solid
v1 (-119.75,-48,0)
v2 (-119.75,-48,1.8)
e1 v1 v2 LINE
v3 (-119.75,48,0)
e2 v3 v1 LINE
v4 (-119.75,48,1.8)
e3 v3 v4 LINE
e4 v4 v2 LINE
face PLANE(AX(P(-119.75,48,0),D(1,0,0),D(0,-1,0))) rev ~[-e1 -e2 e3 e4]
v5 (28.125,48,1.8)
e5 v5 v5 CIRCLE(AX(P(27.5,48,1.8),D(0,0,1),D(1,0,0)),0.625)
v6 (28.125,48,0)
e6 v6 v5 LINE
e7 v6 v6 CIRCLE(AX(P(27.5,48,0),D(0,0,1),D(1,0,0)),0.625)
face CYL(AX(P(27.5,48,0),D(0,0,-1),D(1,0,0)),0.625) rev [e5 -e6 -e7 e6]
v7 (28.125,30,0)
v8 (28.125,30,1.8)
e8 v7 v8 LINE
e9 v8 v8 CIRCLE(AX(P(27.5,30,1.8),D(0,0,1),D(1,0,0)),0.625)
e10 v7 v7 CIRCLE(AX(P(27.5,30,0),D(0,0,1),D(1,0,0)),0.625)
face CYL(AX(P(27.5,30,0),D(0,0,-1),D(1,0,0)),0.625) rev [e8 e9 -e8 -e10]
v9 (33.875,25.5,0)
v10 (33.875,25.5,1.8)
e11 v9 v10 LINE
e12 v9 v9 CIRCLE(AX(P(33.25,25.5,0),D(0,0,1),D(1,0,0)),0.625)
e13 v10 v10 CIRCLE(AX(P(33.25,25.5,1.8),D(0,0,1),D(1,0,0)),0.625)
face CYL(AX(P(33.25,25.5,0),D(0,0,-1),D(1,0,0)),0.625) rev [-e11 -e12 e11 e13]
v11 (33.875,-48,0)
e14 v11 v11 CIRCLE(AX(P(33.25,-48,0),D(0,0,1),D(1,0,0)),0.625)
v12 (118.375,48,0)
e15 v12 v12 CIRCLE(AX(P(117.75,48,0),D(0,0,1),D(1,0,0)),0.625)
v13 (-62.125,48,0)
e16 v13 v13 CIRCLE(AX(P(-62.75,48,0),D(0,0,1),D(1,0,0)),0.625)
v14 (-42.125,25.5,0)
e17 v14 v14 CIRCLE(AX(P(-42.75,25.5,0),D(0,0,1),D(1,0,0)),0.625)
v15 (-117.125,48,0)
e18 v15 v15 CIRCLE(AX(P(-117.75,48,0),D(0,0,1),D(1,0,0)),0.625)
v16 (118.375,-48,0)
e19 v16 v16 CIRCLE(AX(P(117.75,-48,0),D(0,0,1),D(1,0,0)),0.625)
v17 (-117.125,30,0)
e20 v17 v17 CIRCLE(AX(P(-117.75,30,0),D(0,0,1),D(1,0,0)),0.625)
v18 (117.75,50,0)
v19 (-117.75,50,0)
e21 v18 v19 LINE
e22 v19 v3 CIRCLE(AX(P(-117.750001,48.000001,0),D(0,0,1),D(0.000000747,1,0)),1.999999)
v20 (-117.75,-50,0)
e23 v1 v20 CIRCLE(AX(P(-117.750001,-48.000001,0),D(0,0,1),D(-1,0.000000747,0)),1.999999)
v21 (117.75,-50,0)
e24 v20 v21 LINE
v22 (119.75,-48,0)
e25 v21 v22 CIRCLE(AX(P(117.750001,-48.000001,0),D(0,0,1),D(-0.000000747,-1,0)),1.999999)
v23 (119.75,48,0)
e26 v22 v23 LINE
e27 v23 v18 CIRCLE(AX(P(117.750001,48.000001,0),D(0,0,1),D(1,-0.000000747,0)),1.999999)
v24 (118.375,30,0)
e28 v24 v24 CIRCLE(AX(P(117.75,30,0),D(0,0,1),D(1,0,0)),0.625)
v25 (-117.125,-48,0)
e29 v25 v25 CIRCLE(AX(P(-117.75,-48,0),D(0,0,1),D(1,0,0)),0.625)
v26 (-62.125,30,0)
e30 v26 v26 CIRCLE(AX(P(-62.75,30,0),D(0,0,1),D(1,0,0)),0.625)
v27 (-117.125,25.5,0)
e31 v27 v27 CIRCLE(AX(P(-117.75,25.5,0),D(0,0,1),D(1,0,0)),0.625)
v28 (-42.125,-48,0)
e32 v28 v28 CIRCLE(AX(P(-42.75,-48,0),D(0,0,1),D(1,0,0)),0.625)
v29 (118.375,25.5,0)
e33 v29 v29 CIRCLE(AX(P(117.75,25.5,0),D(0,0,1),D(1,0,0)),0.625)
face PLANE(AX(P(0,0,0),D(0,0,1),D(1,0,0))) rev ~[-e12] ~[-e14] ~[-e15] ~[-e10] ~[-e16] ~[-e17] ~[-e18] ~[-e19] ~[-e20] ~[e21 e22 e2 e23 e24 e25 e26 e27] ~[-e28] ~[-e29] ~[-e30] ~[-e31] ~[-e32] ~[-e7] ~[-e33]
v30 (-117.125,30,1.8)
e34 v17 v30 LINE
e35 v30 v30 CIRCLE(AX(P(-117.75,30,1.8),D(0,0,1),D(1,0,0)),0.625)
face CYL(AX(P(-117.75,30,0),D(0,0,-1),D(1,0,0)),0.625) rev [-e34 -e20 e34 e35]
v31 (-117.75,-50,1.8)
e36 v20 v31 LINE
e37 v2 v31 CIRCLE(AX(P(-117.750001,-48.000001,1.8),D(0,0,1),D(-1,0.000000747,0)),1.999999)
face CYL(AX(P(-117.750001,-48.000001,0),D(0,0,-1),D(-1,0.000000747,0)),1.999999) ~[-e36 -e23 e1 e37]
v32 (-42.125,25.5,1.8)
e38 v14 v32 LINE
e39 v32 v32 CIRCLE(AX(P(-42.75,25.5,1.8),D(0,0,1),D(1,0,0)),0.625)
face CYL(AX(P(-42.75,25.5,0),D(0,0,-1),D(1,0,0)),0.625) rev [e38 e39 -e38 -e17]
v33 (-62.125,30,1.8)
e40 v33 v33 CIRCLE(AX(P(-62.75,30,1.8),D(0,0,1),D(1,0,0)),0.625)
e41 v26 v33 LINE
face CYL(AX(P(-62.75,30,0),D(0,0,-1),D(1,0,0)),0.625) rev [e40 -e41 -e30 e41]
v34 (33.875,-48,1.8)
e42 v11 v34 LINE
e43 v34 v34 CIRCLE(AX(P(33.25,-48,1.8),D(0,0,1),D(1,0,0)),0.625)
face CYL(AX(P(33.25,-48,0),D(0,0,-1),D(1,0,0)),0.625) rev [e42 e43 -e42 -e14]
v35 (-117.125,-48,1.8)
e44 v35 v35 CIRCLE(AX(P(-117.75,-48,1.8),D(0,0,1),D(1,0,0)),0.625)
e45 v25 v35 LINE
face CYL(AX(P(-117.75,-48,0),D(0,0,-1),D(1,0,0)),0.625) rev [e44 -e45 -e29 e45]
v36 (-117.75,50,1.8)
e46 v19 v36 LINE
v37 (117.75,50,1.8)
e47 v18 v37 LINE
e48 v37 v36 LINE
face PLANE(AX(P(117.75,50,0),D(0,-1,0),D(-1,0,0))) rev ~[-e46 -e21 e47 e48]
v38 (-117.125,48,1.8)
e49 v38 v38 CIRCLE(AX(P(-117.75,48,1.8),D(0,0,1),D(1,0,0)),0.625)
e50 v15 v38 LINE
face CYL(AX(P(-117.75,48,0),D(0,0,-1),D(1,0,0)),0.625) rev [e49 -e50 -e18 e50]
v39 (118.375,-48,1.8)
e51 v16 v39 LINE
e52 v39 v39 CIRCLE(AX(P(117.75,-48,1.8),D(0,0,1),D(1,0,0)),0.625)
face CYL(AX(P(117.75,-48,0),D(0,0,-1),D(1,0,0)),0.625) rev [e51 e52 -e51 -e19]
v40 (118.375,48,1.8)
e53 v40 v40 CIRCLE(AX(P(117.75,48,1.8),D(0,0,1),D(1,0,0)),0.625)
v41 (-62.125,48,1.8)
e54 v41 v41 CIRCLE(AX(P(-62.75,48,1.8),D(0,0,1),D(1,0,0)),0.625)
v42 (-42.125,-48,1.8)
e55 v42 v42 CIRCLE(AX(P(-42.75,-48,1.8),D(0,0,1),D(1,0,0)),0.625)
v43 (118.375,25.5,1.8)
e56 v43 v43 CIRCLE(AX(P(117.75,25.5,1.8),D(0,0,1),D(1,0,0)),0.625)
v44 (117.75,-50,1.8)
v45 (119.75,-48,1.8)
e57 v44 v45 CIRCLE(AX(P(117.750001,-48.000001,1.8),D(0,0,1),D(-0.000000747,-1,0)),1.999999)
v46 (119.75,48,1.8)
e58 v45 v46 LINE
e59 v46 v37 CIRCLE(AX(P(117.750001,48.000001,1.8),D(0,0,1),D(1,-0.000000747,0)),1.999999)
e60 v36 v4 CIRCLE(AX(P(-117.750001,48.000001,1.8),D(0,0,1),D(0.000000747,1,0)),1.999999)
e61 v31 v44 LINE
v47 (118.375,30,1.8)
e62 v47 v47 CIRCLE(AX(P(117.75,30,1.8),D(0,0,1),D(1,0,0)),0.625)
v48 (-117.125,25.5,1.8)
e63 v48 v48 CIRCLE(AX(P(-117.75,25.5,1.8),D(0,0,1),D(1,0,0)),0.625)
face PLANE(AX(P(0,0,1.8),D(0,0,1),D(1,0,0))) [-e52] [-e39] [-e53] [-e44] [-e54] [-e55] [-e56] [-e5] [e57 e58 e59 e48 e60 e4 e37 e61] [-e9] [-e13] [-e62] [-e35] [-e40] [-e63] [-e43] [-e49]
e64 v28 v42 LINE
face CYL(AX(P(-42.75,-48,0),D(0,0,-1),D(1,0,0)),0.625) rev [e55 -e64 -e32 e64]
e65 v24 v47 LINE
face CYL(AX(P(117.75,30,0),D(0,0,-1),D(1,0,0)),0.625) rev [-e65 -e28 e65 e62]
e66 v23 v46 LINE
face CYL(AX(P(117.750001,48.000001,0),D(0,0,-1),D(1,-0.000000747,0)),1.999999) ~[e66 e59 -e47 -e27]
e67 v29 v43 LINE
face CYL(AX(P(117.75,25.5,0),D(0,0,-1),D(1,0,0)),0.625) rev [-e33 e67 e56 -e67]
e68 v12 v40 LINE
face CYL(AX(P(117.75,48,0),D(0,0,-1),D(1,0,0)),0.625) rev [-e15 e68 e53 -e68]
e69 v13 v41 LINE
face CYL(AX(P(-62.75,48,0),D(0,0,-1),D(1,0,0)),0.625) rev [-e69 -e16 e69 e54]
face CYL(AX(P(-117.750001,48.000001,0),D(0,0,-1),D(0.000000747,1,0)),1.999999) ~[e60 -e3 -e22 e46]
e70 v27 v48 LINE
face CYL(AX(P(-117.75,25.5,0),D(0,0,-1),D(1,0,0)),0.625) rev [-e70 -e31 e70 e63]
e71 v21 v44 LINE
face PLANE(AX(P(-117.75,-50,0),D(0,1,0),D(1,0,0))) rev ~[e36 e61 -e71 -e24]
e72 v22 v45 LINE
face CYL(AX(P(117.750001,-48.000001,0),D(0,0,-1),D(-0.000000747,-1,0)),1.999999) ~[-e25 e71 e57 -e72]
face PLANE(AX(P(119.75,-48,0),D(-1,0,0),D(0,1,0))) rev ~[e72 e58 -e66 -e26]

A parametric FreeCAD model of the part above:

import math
import FreeCAD as App
import Part
import Sketcher
from FreeCAD import Vector
Q = App.Units.Quantity

doc = App.newDocument("Part")
params = doc.addObject("Spreadsheet::Sheet", "Params")
for row, (alias, value) in enumerate([
    ("sketch1_radius", "1.999999 mm"),
    ("sketch1_diameter", "1.25 mm"),
    ("sketch1_height", "96 mm"),
    ("sketch1_width", "235.5 mm"),
    ("pad1_length", "1.8 mm"),
], start=1):
    params.set(f"A{row}", alias)
    params.set(f"B{row}", "=" + value)
    params.setAlias(f"B{row}", alias)

body = doc.addObject("PartDesign::Body", "Body")

sketch1 = body.newObject("Sketcher::SketchObject", "Sketch")
sketch1.AttachmentSupport = (doc.getObject("XY_Plane"), [""])
sketch1.MapMode = "FlatFace"
sketch1.addGeometry([
    Part.LineSegment(Vector(-119.8, 48, 0), Vector(-119.8, -48, 0)),
    Part.ArcOfCircle(Part.Circle(Vector(-117.8, -48, 0), Vector(0, 0, 1), 2), math.radians(180), math.radians(270)),
    Part.LineSegment(Vector(-117.8, -50, 0), Vector(117.8, -50, 0)),
    Part.ArcOfCircle(Part.Circle(Vector(117.8, -48, 0), Vector(0, 0, 1), 2), math.radians(-90), math.radians(0)),
    Part.LineSegment(Vector(119.8, -48, 0), Vector(119.8, 48, 0)),
    Part.ArcOfCircle(Part.Circle(Vector(117.8, 48, 0), Vector(0, 0, 1), 2), math.radians(0), math.radians(90)),
    Part.LineSegment(Vector(117.8, 50, 0), Vector(-117.8, 50, 0)),
    Part.ArcOfCircle(Part.Circle(Vector(-117.8, 48, 0), Vector(0, 0, 1), 2), math.radians(90), math.radians(180)),
    Part.Circle(Vector(-117.8, -48, 0), Vector(0, 0, 1), 0.6),
    Part.Circle(Vector(-42.8, -48, 0), Vector(0, 0, 1), 0.6),
    Part.Circle(Vector(33.2, -48, 0), Vector(0, 0, 1), 0.6),
    Part.Circle(Vector(117.8, -48, 0), Vector(0, 0, 1), 0.6),
    Part.Circle(Vector(-117.8, 25.5, 0), Vector(0, 0, 1), 0.6),
    Part.Circle(Vector(-117.8, 30, 0), Vector(0, 0, 1), 0.6),
    Part.Circle(Vector(-62.8, 30, 0), Vector(0, 0, 1), 0.6),
    Part.Circle(Vector(-117.8, 48, 0), Vector(0, 0, 1), 0.6),
    Part.Circle(Vector(-62.8, 48, 0), Vector(0, 0, 1), 0.6),
    Part.Circle(Vector(-42.8, 25.5, 0), Vector(0, 0, 1), 0.6),
    Part.Circle(Vector(27.5, 30, 0), Vector(0, 0, 1), 0.6),
    Part.Circle(Vector(33.2, 25.5, 0), Vector(0, 0, 1), 0.6),
    Part.Circle(Vector(27.5, 48, 0), Vector(0, 0, 1), 0.6),
    Part.Circle(Vector(117.8, 25.5, 0), Vector(0, 0, 1), 0.6),
    Part.Circle(Vector(117.8, 30, 0), Vector(0, 0, 1), 0.6),
    Part.Circle(Vector(117.8, 48, 0), Vector(0, 0, 1), 0.6),
], False)
sketch1.addConstraint([
    Sketcher.Constraint("Tangent", 0, 2, 1, 1),
    Sketcher.Constraint("Tangent", 1, 2, 2, 1),
    Sketcher.Constraint("Tangent", 2, 2, 3, 1),
    Sketcher.Constraint("Tangent", 3, 2, 4, 1),
    Sketcher.Constraint("Tangent", 4, 2, 5, 1),
    Sketcher.Constraint("Tangent", 5, 2, 6, 1),
    Sketcher.Constraint("Tangent", 6, 2, 7, 1),
    Sketcher.Constraint("Tangent", 7, 2, 0, 1),
    Sketcher.Constraint("Vertical", 0),
    Sketcher.Constraint("Horizontal", 2),
    Sketcher.Constraint("Vertical", 4),
    Sketcher.Constraint("Horizontal", 6),
    Sketcher.Constraint("Coincident", 8, 3, 1, 3),
    Sketcher.Constraint("Coincident", 11, 3, 3, 3),
    Sketcher.Constraint("Coincident", 15, 3, 7, 3),
    Sketcher.Constraint("Coincident", 23, 3, 5, 3),
    Sketcher.Constraint("Equal", 1, 3),
    Sketcher.Constraint("Equal", 3, 5),
    Sketcher.Constraint("Equal", 5, 7),
    Sketcher.Constraint("Equal", 8, 9),
    Sketcher.Constraint("Equal", 9, 10),
    Sketcher.Constraint("Equal", 10, 11),
    Sketcher.Constraint("Equal", 11, 12),
    Sketcher.Constraint("Equal", 12, 13),
    Sketcher.Constraint("Equal", 13, 14),
    Sketcher.Constraint("Equal", 14, 15),
    Sketcher.Constraint("Equal", 15, 16),
    Sketcher.Constraint("Equal", 16, 17),
    Sketcher.Constraint("Equal", 17, 18),
    Sketcher.Constraint("Equal", 18, 19),
    Sketcher.Constraint("Equal", 19, 20),
    Sketcher.Constraint("Equal", 20, 21),
    Sketcher.Constraint("Equal", 21, 22),
    Sketcher.Constraint("Equal", 22, 23),
    Sketcher.Constraint("Symmetric", 1, 3, 5, 3, -1, 1),
    Sketcher.Constraint("Symmetric", 12, 3, 21, 3, -2),
    Sketcher.Constraint("Symmetric", 13, 3, 22, 3, -2),
    Sketcher.Constraint("Horizontal", 8, 3, 9, 3),
    Sketcher.Constraint("Horizontal", 9, 3, 10, 3),
    Sketcher.Constraint("Horizontal", 13, 3, 14, 3),
    Sketcher.Constraint("Horizontal", 15, 3, 16, 3),
    Sketcher.Constraint("Horizontal", 12, 3, 17, 3),
    Sketcher.Constraint("Horizontal", 14, 3, 18, 3),
    Sketcher.Constraint("Horizontal", 17, 3, 19, 3),
    Sketcher.Constraint("Horizontal", 16, 3, 20, 3),
    Sketcher.Constraint("Vertical", 8, 3, 12, 3),
    Sketcher.Constraint("Vertical", 12, 3, 13, 3),
    Sketcher.Constraint("Vertical", 14, 3, 16, 3),
    Sketcher.Constraint("Vertical", 9, 3, 17, 3),
    Sketcher.Constraint("Vertical", 10, 3, 19, 3),
    Sketcher.Constraint("Vertical", 18, 3, 20, 3),
    Sketcher.Constraint("Radius", 1, Q("1.999999 mm")),
    Sketcher.Constraint("Diameter", 8, Q("1.25 mm")),
    Sketcher.Constraint("DistanceY", 0, 2, 0, 1, Q("96 mm")),
    Sketcher.Constraint("DistanceX", 2, 1, 2, 2, Q("235.5 mm")),
    Sketcher.Constraint("DistanceY", -1, 1, 13, 3, Q("30 mm")),
    Sketcher.Constraint("DistanceX", 8, 3, 9, 3, Q("75 mm")),
    Sketcher.Constraint("DistanceX", 9, 3, 10, 3, Q("76 mm")),
    Sketcher.Constraint("DistanceX", 13, 3, 14, 3, Q("55 mm")),
    Sketcher.Constraint("DistanceY", -1, 1, 12, 3, Q("25.5 mm")),
    Sketcher.Constraint("DistanceX", -1, 1, 18, 3, Q("27.5 mm")),
])
sketch1.setExpression("Constraints[51]", "Params.sketch1_radius")
sketch1.setExpression("Constraints[52]", "Params.sketch1_diameter")
sketch1.setExpression("Constraints[53]", "Params.sketch1_height")
sketch1.setExpression("Constraints[54]", "Params.sketch1_width")
pad1 = body.newObject("PartDesign::Pad", "Pad")
pad1.Profile = sketch1
pad1.setExpression("Length", "Params.pad1_length")

doc.recompute()
